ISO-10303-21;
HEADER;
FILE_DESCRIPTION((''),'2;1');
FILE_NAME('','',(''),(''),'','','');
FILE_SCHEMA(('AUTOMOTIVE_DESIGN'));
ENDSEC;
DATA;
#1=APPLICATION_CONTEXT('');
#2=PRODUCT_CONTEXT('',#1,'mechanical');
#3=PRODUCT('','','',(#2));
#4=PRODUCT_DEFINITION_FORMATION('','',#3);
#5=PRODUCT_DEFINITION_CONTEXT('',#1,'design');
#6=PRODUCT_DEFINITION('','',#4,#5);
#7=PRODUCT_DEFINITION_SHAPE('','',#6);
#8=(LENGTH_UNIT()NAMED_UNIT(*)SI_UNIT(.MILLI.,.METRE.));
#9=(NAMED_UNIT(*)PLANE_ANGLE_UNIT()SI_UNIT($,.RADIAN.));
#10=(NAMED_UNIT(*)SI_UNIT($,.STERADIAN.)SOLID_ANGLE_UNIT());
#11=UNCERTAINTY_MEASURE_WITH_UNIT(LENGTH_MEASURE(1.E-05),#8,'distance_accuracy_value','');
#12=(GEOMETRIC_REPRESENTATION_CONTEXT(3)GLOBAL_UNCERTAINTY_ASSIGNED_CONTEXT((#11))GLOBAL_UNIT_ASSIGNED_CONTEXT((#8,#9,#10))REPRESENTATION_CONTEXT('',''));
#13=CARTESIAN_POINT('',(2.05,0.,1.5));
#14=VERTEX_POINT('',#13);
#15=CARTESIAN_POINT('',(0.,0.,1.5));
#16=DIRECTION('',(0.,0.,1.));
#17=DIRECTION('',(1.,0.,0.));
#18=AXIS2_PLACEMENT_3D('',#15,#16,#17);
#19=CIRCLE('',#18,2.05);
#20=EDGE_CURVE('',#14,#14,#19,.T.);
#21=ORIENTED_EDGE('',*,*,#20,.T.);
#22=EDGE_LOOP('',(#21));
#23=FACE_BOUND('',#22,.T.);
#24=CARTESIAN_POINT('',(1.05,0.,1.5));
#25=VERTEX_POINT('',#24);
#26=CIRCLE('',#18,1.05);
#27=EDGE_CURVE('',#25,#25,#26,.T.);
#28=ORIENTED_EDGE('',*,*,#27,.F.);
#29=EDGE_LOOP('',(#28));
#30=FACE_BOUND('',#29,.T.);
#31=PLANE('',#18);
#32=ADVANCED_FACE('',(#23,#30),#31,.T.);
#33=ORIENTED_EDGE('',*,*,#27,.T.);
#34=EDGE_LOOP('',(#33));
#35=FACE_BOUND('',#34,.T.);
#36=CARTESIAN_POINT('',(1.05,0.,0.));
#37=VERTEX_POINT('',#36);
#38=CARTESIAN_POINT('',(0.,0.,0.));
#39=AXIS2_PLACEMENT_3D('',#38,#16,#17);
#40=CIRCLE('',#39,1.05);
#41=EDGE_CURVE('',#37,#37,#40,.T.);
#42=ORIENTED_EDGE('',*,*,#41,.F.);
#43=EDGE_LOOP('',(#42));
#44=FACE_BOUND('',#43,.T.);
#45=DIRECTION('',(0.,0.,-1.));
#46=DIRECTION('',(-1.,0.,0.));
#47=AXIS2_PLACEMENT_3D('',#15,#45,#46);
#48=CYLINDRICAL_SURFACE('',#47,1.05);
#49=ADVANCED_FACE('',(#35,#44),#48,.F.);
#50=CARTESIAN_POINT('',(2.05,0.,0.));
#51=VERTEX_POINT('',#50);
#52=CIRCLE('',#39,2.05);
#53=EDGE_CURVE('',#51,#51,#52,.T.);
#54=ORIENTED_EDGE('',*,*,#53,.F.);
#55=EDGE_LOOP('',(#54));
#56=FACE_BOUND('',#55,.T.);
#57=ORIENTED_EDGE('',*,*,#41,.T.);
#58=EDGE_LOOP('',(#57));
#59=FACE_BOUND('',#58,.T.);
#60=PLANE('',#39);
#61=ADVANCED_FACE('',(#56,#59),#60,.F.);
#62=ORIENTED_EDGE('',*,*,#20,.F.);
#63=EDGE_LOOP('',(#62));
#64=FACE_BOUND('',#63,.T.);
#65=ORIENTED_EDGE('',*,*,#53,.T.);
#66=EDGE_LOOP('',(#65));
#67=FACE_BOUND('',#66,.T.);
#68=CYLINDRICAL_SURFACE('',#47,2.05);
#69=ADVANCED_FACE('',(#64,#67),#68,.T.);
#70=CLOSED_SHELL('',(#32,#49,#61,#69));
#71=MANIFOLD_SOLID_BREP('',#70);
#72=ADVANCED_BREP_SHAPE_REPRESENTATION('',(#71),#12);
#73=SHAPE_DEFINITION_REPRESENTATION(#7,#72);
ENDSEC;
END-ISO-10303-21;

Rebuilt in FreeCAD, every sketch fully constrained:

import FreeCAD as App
import Part
import Sketcher

V = App.Vector
Q = App.Units.Quantity

doc = App.newDocument("Part")
body = doc.addObject("PartDesign::Body", "Body")

# Sketch on XY plane
sketch1 = doc.addObject("Sketcher::SketchObject", "Sketch")
body.addObject(sketch1)
sketch1.AttachmentSupport = (doc.XY_Plane, [""])
sketch1.MapMode = "FlatFace"
sketch1.addGeometry([
    Part.Circle(V(0, 0, 0), V(0, 0, 1), 2),
    Part.Circle(V(0, 0, 0), V(0, 0, 1), 1.1),
], False)
sketch1.addConstraint([
    Sketcher.Constraint("Coincident", 0, 3, -1, 1),
    Sketcher.Constraint("Coincident", 1, 3, -1, 1),
    Sketcher.Constraint("Diameter", 0, Q("4.1 mm")),
    Sketcher.Constraint("Diameter", 1, Q("2.1 mm")),
])
pad1 = doc.addObject("PartDesign::Pad", "Pad")
body.addObject(pad1)
pad1.Profile = sketch1
pad1.Length = 1.5

doc.recompute()
